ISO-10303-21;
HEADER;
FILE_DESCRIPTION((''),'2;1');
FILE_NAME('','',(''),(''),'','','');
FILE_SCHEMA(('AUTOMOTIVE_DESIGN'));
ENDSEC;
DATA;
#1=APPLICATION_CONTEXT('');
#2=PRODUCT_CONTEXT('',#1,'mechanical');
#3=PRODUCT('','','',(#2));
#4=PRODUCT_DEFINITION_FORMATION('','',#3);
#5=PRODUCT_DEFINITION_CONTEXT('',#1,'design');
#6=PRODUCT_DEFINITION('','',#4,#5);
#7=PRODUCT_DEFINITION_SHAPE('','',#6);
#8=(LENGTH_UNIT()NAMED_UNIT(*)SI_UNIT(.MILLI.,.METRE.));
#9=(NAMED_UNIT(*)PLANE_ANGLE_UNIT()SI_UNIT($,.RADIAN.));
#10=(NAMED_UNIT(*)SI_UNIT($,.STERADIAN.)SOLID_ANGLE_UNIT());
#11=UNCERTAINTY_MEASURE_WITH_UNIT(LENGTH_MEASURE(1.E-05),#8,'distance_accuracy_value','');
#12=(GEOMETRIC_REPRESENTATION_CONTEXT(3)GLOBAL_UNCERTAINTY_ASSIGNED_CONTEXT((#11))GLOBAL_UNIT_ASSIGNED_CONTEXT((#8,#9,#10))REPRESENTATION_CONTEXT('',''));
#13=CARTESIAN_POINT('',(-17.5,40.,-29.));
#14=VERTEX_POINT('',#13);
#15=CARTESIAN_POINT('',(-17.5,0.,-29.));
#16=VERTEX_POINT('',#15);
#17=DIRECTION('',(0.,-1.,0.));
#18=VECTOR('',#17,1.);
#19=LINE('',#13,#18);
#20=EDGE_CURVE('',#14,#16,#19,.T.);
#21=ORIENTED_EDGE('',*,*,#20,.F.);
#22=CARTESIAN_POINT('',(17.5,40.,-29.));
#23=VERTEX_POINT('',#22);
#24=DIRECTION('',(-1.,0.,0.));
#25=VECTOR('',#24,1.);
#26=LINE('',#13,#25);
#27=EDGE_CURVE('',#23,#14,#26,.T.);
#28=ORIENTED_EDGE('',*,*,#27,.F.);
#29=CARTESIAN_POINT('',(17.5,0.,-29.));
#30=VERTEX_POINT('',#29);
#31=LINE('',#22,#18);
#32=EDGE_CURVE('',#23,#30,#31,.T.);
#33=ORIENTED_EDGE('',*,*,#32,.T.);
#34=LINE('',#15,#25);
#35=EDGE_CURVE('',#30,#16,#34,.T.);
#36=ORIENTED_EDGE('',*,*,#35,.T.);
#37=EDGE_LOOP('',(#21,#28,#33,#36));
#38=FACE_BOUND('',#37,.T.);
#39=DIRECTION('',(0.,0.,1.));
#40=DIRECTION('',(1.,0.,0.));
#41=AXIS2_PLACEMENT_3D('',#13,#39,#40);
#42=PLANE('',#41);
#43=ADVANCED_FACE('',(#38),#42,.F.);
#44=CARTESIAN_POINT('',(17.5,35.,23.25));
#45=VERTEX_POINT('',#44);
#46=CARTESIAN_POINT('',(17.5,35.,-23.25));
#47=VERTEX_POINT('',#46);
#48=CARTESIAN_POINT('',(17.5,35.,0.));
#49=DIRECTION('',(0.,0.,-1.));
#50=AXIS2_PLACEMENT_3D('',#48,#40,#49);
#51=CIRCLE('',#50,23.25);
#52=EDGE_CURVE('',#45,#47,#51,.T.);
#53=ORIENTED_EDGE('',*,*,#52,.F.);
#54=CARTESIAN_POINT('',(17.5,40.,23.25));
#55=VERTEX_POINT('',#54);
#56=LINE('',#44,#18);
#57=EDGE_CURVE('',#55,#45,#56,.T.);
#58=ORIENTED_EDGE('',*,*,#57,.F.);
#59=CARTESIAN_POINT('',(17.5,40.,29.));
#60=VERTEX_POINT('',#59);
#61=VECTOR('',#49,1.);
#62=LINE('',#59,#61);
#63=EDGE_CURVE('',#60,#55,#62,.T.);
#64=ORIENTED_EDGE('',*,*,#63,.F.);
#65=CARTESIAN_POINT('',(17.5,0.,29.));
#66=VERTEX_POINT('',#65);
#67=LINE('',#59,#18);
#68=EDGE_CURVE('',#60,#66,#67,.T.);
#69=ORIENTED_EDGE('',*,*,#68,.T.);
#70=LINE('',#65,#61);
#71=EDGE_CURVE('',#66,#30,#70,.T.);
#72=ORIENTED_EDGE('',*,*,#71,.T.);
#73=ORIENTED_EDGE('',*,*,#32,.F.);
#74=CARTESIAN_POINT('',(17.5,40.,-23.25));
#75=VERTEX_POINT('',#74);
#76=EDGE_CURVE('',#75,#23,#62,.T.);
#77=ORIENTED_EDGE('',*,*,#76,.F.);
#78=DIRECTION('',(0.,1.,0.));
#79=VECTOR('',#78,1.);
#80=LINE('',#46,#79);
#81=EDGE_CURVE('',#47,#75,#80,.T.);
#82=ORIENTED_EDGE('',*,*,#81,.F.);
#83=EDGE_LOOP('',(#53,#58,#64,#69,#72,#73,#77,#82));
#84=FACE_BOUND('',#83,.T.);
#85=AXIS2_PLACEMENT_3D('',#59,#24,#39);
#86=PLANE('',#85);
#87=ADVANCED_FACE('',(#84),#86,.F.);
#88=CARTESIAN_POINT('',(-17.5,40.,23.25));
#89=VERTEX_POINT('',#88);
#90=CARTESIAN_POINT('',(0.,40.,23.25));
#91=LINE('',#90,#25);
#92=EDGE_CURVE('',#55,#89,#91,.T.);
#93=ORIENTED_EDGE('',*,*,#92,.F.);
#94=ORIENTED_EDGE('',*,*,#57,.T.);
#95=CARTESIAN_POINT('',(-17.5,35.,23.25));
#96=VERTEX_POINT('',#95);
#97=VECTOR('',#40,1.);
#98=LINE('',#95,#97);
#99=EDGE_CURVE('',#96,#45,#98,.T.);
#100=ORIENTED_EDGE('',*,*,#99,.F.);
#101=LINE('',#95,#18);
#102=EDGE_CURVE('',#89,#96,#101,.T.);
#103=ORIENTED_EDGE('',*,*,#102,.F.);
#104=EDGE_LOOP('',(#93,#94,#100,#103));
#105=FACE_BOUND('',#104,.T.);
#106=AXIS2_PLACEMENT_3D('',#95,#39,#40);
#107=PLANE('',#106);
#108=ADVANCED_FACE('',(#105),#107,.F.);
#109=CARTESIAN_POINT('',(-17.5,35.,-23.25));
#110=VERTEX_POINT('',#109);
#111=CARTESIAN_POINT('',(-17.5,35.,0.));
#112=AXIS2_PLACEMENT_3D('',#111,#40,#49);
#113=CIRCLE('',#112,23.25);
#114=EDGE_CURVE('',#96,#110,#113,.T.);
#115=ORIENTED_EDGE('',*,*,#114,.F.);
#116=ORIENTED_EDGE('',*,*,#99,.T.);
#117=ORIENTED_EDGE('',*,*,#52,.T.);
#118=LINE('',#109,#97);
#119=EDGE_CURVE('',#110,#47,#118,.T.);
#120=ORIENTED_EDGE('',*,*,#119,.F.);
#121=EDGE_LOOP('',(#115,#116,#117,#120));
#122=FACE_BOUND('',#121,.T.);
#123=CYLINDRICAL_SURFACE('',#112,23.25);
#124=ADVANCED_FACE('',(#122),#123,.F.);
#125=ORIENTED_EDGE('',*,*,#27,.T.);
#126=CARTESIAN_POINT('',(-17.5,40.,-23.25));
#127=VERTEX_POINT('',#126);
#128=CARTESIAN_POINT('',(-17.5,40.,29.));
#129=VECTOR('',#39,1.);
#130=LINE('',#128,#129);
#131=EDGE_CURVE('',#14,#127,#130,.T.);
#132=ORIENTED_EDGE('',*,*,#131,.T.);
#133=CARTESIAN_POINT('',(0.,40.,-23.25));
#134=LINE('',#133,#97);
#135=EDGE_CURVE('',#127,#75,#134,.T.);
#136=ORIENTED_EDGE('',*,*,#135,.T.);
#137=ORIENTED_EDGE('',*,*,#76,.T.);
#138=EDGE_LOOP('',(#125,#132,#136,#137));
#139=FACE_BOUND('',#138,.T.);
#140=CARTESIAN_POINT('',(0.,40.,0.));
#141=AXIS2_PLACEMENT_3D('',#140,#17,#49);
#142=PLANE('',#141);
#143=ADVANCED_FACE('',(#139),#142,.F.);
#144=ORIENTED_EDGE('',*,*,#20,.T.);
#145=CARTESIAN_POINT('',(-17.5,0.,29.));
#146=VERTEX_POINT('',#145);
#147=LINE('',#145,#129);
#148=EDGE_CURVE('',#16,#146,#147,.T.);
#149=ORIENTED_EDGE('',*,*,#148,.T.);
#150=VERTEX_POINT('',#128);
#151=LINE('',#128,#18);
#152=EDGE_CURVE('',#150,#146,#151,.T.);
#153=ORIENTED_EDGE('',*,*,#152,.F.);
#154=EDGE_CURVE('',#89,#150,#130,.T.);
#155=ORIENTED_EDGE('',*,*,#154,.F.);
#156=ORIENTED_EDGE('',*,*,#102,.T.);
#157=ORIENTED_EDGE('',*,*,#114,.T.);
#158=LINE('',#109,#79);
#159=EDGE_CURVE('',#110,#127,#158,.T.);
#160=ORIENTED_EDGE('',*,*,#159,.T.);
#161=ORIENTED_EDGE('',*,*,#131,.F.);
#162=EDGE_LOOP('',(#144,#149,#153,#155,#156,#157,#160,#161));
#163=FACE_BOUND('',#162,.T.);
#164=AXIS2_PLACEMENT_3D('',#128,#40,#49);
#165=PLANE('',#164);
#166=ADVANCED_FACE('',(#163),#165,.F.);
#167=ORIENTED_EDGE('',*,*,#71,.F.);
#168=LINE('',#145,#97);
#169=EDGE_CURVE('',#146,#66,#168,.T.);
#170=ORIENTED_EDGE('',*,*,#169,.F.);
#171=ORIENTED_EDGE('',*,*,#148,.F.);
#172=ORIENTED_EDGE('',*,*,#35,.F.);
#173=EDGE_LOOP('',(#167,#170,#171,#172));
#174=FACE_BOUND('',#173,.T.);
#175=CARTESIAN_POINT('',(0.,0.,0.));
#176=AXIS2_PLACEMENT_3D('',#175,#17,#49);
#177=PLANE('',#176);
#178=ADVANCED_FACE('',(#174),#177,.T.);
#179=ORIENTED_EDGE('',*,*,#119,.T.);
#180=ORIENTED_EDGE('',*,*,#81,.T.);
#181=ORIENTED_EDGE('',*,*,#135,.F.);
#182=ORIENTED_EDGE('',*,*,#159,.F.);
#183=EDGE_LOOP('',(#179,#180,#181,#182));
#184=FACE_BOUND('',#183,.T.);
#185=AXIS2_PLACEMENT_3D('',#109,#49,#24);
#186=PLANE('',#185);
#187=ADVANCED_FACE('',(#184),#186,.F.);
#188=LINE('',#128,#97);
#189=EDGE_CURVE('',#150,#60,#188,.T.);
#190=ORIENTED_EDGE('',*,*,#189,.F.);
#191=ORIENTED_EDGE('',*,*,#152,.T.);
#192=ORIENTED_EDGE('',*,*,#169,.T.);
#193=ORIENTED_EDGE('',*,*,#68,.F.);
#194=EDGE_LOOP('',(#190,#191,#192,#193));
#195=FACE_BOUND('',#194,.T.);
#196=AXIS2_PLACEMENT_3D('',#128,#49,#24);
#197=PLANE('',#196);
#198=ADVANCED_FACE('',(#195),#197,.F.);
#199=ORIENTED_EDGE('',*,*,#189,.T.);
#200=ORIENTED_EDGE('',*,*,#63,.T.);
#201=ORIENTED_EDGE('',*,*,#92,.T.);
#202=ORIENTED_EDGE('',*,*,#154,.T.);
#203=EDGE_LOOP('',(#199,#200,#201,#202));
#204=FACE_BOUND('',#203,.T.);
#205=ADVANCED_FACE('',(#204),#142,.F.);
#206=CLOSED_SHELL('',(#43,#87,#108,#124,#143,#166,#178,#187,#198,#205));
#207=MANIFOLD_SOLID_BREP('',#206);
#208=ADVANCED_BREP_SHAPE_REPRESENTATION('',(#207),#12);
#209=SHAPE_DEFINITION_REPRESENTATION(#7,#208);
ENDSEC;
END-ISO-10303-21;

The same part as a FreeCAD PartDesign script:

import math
import FreeCAD as App
import Part
import Sketcher
Q = App.Units.Quantity


def add_polygon(sketch, points):
    """Adds a closed chain of lines whose ends are joined by coincident constraints."""
    first, n = sketch.GeometryCount, len(points)
    for a, b in zip(points, points[1:] + points[:1]):
        sketch.addGeometry(Part.LineSegment(App.Vector(*a, 0), App.Vector(*b, 0)), False)
    for i in range(n):
        sketch.addConstraint(Sketcher.Constraint("Coincident", first + i, 2, first + (i + 1) % n, 1))

doc = App.newDocument("Part")
body = doc.addObject("PartDesign::Body", "Body")

# Sketch on XZ plane
sketch1 = body.newObject("Sketcher::SketchObject", "Sketch")
sketch1.AttachmentSupport = (doc.getObject("XZ_Plane"), [""])
sketch1.MapMode = "FlatFace"
add_polygon(sketch1, [(-18, -29), (-18, 29), (18, 29), (18, -29)])  # lines 0-3
sketch1.addConstraint([
    Sketcher.Constraint("Vertical", 0),
    Sketcher.Constraint("Horizontal", 1),
    Sketcher.Constraint("Vertical", 2),
    Sketcher.Constraint("Horizontal", 3),
    Sketcher.Constraint("Symmetric", 0, 2, 2, 2, -1, 1),
    Sketcher.Constraint("DistanceX", 1, 1, 1, 2, Q("35 mm")),
    Sketcher.Constraint("DistanceY", 0, 1, 0, 2, Q("58 mm")),
])
pad1 = body.newObject("PartDesign::Pad", "Pad")
pad1.Profile = sketch1
pad1.Length = 40
pad1.Reversed = True

# Sketch on YZ plane
sketch2 = body.newObject("Sketcher::SketchObject", "Sketch001")
sketch2.AttachmentSupport = (doc.getObject("YZ_Plane"), [""])
sketch2.MapMode = "FlatFace"
sketch2.AttachmentOffset = App.Placement(App.Vector(0, 0, 17.5), App.Rotation())
sketch2.addGeometry([
    Part.LineSegment(App.Vector(58, 23, 0), App.Vector(35, 23, 0)),
    Part.ArcOfCircle(Part.Circle(App.Vector(35, 0, 0), App.Vector(0, 0, 1), 23), math.radians(90), math.radians(270)),
    Part.LineSegment(App.Vector(35, -23, 0), App.Vector(58, -23, 0)),
    Part.LineSegment(App.Vector(58, -23, 0), App.Vector(58, 23, 0)),
], False)
sketch2.addConstraint([
    Sketcher.Constraint("Tangent", 0, 2, 1, 1),
    Sketcher.Constraint("Tangent", 1, 2, 2, 1),
    Sketcher.Constraint("Coincident", 2, 2, 3, 1),
    Sketcher.Constraint("Coincident", 3, 2, 0, 1),
    Sketcher.Constraint("Horizontal", 0),
    Sketcher.Constraint("Horizontal", 2),
    Sketcher.Constraint("Vertical", 3),
    Sketcher.Constraint("PointOnObject", 1, 3, -1),
    Sketcher.Constraint("Radius", 1, Q("23.25 mm")),
    Sketcher.Constraint("DistanceX", -1, 1, 1, 3, Q("35 mm")),
    Sketcher.Constraint("DistanceX", 0, 2, 0, 1, Q("23.25 mm")),
])
pocket1 = body.newObject("PartDesign::Pocket", "Pocket")
pocket1.Profile = sketch2
pocket1.Type = "ThroughAll"

doc.recompute()
